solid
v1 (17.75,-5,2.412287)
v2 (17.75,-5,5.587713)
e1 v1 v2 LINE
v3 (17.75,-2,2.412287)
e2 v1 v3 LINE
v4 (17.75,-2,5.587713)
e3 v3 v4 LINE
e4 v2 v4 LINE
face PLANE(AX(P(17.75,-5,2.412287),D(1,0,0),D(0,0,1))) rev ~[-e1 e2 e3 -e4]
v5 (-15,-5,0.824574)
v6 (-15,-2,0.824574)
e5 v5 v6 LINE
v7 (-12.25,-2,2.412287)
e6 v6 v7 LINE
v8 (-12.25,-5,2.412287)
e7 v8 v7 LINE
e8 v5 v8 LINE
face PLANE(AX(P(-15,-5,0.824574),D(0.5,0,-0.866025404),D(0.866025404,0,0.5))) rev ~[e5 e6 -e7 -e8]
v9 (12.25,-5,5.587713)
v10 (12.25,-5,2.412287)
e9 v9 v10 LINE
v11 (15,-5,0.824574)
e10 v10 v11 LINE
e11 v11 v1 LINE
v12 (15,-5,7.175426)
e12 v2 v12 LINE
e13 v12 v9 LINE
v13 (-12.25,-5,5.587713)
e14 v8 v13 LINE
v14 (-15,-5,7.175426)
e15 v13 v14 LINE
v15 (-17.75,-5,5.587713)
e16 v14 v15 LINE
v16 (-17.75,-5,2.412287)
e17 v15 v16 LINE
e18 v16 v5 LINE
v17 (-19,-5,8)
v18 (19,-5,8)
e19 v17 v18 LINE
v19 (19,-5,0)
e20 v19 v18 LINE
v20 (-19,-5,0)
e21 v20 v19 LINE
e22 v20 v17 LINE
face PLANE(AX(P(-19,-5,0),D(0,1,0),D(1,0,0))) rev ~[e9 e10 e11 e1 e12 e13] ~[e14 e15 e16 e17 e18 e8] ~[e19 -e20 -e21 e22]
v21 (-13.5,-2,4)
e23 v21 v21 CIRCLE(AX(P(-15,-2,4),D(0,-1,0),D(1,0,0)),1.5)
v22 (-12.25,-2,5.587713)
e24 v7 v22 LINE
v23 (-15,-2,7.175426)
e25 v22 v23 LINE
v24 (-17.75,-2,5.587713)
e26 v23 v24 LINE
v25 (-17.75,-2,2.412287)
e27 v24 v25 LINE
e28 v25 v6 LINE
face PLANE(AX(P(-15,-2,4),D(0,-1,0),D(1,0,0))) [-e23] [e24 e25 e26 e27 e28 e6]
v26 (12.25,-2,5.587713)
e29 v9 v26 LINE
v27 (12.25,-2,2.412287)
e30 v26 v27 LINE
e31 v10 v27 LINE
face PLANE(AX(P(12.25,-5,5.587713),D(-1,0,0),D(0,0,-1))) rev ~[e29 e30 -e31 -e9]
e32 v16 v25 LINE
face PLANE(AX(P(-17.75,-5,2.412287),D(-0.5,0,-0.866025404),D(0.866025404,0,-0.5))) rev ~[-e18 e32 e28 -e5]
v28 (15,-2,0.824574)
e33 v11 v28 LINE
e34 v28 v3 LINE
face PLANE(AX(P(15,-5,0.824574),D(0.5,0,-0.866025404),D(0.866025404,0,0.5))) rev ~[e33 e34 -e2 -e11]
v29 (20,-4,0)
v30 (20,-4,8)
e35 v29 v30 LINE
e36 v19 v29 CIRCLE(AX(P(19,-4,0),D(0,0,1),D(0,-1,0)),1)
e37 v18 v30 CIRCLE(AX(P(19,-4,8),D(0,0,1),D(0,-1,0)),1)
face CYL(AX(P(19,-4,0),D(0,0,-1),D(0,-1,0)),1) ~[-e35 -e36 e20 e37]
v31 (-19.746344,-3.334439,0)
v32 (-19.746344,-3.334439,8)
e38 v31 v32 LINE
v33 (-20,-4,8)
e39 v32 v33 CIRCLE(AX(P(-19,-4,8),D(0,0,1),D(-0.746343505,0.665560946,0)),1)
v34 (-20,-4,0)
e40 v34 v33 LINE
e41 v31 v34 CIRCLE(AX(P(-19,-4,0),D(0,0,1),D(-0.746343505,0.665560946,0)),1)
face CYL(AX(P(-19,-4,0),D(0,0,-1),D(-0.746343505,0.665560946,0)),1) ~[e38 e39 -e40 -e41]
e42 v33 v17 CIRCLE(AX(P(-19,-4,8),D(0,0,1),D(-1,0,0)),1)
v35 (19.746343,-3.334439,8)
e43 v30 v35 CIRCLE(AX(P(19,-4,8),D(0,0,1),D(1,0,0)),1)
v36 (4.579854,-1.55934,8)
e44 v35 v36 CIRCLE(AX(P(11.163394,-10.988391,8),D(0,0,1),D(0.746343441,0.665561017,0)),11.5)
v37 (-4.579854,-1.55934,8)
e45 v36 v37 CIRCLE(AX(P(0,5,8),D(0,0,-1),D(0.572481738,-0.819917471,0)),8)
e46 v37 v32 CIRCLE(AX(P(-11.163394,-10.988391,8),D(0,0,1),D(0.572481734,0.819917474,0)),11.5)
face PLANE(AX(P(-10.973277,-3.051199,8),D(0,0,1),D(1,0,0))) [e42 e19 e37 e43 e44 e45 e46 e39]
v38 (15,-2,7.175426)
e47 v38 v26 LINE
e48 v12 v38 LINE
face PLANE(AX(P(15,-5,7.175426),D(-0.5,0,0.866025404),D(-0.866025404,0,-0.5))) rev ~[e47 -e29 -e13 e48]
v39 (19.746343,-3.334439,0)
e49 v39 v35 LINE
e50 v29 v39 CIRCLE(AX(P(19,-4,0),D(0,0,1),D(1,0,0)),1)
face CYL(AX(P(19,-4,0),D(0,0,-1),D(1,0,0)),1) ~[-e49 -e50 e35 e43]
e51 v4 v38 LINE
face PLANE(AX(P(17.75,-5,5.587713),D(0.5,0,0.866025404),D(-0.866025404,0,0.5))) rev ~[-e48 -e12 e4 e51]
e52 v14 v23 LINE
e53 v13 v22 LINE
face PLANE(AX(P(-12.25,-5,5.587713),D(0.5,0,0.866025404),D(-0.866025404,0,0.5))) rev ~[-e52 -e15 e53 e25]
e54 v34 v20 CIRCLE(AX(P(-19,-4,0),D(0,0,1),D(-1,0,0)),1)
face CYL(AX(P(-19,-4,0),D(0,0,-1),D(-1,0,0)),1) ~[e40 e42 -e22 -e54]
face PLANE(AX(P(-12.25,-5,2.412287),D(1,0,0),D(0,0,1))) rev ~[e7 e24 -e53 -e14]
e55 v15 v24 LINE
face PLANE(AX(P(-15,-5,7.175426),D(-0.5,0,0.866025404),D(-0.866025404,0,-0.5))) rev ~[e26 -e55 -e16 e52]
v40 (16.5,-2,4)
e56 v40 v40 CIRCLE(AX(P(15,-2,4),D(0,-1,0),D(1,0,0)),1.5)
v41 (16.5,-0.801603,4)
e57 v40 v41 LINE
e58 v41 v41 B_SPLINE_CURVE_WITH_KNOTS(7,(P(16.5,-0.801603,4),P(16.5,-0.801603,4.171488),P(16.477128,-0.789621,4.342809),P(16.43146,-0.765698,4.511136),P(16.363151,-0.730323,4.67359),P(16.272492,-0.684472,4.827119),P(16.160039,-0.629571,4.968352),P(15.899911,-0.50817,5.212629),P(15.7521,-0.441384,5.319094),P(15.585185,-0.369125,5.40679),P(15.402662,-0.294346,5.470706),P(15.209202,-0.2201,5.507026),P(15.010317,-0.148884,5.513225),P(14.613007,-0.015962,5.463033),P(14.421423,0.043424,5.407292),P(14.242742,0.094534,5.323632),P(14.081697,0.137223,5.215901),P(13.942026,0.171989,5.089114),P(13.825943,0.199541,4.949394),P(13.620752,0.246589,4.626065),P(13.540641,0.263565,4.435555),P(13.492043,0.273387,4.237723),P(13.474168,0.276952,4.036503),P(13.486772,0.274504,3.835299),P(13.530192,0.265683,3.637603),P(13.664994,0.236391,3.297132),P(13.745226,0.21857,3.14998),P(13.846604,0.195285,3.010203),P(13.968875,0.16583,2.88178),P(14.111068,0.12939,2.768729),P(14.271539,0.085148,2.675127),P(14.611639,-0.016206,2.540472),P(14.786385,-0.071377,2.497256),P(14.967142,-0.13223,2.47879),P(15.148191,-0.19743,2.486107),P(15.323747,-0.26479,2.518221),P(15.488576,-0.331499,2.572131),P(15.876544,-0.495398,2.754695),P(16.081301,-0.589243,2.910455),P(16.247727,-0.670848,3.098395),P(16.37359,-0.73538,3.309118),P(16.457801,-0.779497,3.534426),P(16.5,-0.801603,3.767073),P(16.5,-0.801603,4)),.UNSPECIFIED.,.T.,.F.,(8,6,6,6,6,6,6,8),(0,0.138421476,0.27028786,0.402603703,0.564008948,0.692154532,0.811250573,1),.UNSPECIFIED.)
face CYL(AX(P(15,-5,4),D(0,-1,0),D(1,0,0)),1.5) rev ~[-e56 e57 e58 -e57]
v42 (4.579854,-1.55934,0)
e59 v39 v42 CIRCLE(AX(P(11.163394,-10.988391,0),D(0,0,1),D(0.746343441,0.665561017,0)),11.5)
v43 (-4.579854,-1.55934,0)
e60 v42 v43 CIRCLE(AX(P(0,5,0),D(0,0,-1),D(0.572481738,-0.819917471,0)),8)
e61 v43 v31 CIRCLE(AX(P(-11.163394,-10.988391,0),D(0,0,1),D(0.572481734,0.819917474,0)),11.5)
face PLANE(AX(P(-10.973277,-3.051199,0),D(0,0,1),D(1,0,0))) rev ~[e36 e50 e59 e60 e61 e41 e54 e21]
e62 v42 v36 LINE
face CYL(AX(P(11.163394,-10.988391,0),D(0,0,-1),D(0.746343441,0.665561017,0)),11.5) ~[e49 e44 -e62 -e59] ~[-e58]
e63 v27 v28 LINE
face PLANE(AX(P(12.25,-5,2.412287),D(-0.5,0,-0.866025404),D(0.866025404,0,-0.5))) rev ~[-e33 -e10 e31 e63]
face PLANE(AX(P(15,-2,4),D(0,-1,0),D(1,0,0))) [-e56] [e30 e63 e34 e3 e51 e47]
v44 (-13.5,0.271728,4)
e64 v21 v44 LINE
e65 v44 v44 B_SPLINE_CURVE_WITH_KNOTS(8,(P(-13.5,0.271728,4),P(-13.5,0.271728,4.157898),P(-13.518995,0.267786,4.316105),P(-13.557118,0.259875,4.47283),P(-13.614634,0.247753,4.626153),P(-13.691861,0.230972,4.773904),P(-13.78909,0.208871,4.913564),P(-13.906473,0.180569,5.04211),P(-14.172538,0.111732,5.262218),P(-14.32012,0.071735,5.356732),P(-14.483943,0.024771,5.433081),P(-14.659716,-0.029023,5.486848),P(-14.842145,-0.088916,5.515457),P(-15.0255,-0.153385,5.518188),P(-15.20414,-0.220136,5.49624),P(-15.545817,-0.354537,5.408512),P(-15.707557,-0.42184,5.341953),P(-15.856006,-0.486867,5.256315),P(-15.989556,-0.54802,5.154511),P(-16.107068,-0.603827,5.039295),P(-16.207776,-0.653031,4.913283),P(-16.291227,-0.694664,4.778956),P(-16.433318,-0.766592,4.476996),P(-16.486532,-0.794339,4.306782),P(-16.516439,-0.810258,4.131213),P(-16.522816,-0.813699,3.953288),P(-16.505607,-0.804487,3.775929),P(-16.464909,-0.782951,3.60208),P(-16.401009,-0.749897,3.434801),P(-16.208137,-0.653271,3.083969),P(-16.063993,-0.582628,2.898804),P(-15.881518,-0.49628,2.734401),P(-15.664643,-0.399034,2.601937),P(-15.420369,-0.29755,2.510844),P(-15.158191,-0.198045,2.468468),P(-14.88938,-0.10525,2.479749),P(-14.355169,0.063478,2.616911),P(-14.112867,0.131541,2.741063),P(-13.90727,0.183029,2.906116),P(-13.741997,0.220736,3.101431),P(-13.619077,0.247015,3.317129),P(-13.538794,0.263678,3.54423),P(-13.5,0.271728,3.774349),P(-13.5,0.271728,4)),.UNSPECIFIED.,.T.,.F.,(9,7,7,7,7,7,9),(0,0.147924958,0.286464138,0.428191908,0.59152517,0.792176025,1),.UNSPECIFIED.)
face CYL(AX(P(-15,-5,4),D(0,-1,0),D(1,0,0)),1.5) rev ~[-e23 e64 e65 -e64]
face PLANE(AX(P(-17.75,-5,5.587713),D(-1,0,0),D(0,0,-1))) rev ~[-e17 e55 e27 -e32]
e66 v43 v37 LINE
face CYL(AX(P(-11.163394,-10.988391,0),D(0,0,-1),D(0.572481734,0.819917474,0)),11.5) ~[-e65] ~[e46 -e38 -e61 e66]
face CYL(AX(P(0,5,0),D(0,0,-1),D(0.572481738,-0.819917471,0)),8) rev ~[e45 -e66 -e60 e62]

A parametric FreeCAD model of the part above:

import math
import FreeCAD as App
import Part
import Sketcher
Q = App.Units.Quantity


def add_polygon(sketch, points):
    """Adds a closed chain of lines whose ends are joined by coincident constraints."""
    first, n = sketch.GeometryCount, len(points)
    for a, b in zip(points, points[1:] + points[:1]):
        sketch.addGeometry(Part.LineSegment(App.Vector(*a, 0), App.Vector(*b, 0)), False)
    for i in range(n):
        sketch.addConstraint(Sketcher.Constraint("Coincident", first + i, 2, first + (i + 1) % n, 1))

doc = App.newDocument("Part")
body = doc.addObject("PartDesign::Body", "Body")

# Sketch on XY plane
sketch1 = body.newObject("Sketcher::SketchObject", "Sketch")
sketch1.AttachmentSupport = (doc.getObject("XY_Plane"), [""])
sketch1.MapMode = "FlatFace"
sketch1.addGeometry([
    Part.ArcOfCircle(Part.Circle(App.Vector(-11.163394, -10.988391, 0), App.Vector(0, 0, 1), 11.5), math.radians(55.076533), math.radians(138.274621)),  # 0
    Part.ArcOfCircle(Part.Circle(App.Vector(-19, -4, 0), App.Vector(0, 0, 1), 1), math.radians(138.274626), math.radians(180)),  # 1
    Part.ArcOfCircle(Part.Circle(App.Vector(-19, -4, 0), App.Vector(0, 0, 1), 1), math.radians(180), math.radians(270)),  # 2
    Part.LineSegment(App.Vector(-19, -5, 0), App.Vector(19, -5, 0)),  # 3
    Part.ArcOfCircle(Part.Circle(App.Vector(19, -4, 0), App.Vector(0, 0, 1), 1), math.radians(-90), math.radians(0)),  # 4
    Part.ArcOfCircle(Part.Circle(App.Vector(19, -4, 0), App.Vector(0, 0, 1), 1), math.radians(0), math.radians(41.725378)),  # 5
    Part.ArcOfCircle(Part.Circle(App.Vector(11.163394, -10.988391, 0), App.Vector(0, 0, 1), 11.5), math.radians(41.72538), math.radians(124.923467)),  # 6
    Part.ArcOfCircle(Part.Circle(App.Vector(0, 5, 0), App.Vector(0, 0, 1), 8), math.radians(-124.923467), math.radians(-55.076533)),  # 7
], False)
sketch1.addConstraint([
    Sketcher.Constraint("Tangent", 0, 2, 1, 1),
    Sketcher.Constraint("Tangent", 1, 2, 2, 1),
    Sketcher.Constraint("Tangent", 2, 2, 3, 1),
    Sketcher.Constraint("Tangent", 3, 2, 4, 1),
    Sketcher.Constraint("Tangent", 4, 2, 5, 1),
    Sketcher.Constraint("Tangent", 5, 2, 6, 1),
    Sketcher.Constraint("Tangent", 6, 2, 7, 2),
    Sketcher.Constraint("Tangent", 7, 1, 0, 1),
    Sketcher.Constraint("Horizontal", 3),
    Sketcher.Constraint("Equal", 1, 2),
    Sketcher.Constraint("Equal", 2, 4),
    Sketcher.Constraint("Equal", 4, 5),
    Sketcher.Constraint("Equal", 0, 6),
    Sketcher.Constraint("Symmetric", 0, 3, 6, 3, -2),
    Sketcher.Constraint("Horizontal", 5, 3, 1, 2),
    Sketcher.Constraint("Horizontal", 1, 2, 4, 2),
    Sketcher.Constraint("Radius", 1, Q("1 mm")),
    Sketcher.Constraint("Radius", 7, Q("8 mm")),
    Sketcher.Constraint("Radius", 0, Q("11.5 mm")),
    Sketcher.Constraint("DistanceX", 3, 1, 3, 2, Q("38 mm")),
    Sketcher.Constraint("DistanceY", 1, 3, -1, 1, Q("4 mm")),
    Sketcher.Constraint("DistanceY", -1, 1, 7, 3, Q("5 mm")),
])
pad1 = body.newObject("PartDesign::Pad", "Pad")
pad1.Profile = sketch1
pad1.Length = 8

# Sketch on XZ plane
sketch2 = body.newObject("Sketcher::SketchObject", "Sketch001")
sketch2.AttachmentSupport = (doc.getObject("XZ_Plane"), [""])
sketch2.MapMode = "FlatFace"
sketch2.AttachmentOffset = App.Placement(App.Vector(0, 0, 5), App.Rotation())
sketch2.addGeometry([
    Part.Circle(App.Vector(-15, 4, 0), App.Vector(0, 0, 1), 1.5),
    Part.Circle(App.Vector(15, 4, 0), App.Vector(0, 0, 1), 1.5),
], False)
sketch2.addConstraint([
    Sketcher.Constraint("Equal", 0, 1),
    Sketcher.Constraint("Symmetric", 0, 3, 1, 3, -2),
    Sketcher.Constraint("Diameter", 0, Q("3 mm")),
    Sketcher.Constraint("DistanceX", 0, 3, -1, 1, Q("15 mm")),
    Sketcher.Constraint("DistanceY", -1, 1, 0, 3, Q("4 mm")),
])
pocket1 = body.newObject("PartDesign::Pocket", "Pocket")
pocket1.Profile = sketch2
pocket1.Length = 25

# Sketch on XZ plane
sketch3 = body.newObject("Sketcher::SketchObject", "Sketch002")
sketch3.AttachmentSupport = (doc.getObject("XZ_Plane"), [""])
sketch3.MapMode = "FlatFace"
sketch3.AttachmentOffset = App.Placement(App.Vector(0, 0, 5), App.Rotation())
add_polygon(sketch3, [(-12.25, 2.412287), (-12.25, 5.587713), (-15, 7.175426), (-17.75, 5.587713), (-17.75, 2.412287), (-15, 0.824574)])  # lines 0-5
add_polygon(sketch3, [(12.25, 5.587713), (12.25, 2.412287), (15, 0.824574), (17.75, 2.412287), (17.75, 5.587713), (15, 7.175426)])  # lines 6-11
sketch3.addConstraint([
    Sketcher.Constraint("Vertical", 0),
    Sketcher.Constraint("Vertical", 3),
    Sketcher.Constraint("Vertical", 6),
    Sketcher.Constraint("Vertical", 9),
    Sketcher.Constraint("Symmetric", 5, 2, 6, 2, -2),
    Sketcher.Constraint("Symmetric", 4, 2, 7, 2, -2),
    Sketcher.Constraint("Symmetric", 3, 2, 8, 2, -2),
    Sketcher.Constraint("Symmetric", 1, 2, 10, 2, -2),
    Sketcher.Constraint("Parallel", 1, 4),
    Sketcher.Constraint("Parallel", 2, 5),
    Sketcher.Constraint("Parallel", 4, 7),
    Sketcher.Constraint("Parallel", 7, 10),
    Sketcher.Constraint("Parallel", 8, 11),
    Sketcher.Constraint("Horizontal", 0, 2, 2, 2),
    Sketcher.Constraint("Horizontal", 3, 2, 5, 2),
    Sketcher.Constraint("Angle", 1, Q("150 deg")),
    Sketcher.Constraint("DistanceX", 1, 2, -1, 1, Q("15 mm")),
    Sketcher.Constraint("DistanceX", 2, 2, 0, 2, Q("5.5 mm")),
    Sketcher.Constraint("DistanceY", 0, 1, 0, 2, Q("3.175426 mm")),
    Sketcher.Constraint("DistanceY", -1, 1, 0, 2, Q("5.587713 mm")),
])
pocket2 = body.newObject("PartDesign::Pocket", "Pocket001")
pocket2.Profile = sketch3
pocket2.Length = 3

doc.recompute()
